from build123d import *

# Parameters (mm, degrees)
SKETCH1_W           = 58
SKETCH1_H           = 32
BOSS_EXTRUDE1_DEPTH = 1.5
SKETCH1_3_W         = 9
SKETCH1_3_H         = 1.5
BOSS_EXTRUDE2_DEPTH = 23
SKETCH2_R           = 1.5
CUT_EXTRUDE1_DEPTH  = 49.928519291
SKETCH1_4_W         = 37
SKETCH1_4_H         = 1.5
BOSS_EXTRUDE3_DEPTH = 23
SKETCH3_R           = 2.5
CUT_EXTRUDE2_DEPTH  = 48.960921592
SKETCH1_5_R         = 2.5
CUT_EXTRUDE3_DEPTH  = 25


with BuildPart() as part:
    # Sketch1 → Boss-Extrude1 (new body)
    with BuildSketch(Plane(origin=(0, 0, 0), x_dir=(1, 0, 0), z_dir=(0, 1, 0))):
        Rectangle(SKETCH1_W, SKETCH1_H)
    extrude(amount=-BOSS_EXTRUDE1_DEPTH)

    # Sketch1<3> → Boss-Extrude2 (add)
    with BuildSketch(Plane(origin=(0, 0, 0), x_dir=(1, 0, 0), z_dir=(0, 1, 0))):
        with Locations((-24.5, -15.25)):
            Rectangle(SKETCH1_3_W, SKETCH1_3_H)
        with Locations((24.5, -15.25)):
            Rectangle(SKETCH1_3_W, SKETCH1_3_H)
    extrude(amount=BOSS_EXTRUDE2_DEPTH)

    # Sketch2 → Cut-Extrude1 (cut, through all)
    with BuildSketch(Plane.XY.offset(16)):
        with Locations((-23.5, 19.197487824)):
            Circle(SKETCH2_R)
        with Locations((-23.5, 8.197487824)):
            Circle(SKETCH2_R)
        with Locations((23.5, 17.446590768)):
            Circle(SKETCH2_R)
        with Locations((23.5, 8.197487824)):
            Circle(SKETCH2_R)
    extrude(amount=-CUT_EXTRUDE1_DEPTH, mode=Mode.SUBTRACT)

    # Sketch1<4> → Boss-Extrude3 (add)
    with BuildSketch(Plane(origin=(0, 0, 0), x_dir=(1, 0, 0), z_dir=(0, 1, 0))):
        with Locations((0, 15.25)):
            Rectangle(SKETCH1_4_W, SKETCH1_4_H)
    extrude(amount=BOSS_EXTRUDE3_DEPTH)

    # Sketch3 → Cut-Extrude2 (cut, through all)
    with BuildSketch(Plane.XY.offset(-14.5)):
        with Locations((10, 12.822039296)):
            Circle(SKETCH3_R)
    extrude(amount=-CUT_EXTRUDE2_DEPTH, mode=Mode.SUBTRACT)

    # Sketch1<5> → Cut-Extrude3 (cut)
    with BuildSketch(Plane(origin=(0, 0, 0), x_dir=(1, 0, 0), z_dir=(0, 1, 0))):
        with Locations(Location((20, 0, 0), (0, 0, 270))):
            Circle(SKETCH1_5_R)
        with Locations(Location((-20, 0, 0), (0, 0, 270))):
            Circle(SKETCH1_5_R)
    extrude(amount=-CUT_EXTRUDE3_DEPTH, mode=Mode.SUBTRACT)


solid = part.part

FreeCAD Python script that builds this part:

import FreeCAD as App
import Part
import Sketcher
Q = App.Units.Quantity

doc = App.newDocument("Part")
body = doc.addObject("PartDesign::Body", "Body")

# Sketch on XZ plane
sketch1 = doc.addObject("Sketcher::SketchObject", "Sketch")
body.addObject(sketch1)
sketch1.AttachmentSupport = (doc.XZ_Plane, [""])
sketch1.MapMode = "FlatFace"
sketch1.addGeometry(Part.LineSegment(App.Vector(-29, -16, 0), App.Vector(-29, 16, 0)), False)
sketch1.addGeometry(Part.LineSegment(App.Vector(-29, 16, 0), App.Vector(29, 16, 0)), False)
sketch1.addGeometry(Part.LineSegment(App.Vector(29, 16, 0), App.Vector(29, -16, 0)), False)
sketch1.addGeometry(Part.LineSegment(App.Vector(29, -16, 0), App.Vector(-29, -16, 0)), False)
sketch1.addConstraint(Sketcher.Constraint("Coincident", 0, 2, 1, 1))
sketch1.addConstraint(Sketcher.Constraint("Coincident", 1, 2, 2, 1))
sketch1.addConstraint(Sketcher.Constraint("Coincident", 2, 2, 3, 1))
sketch1.addConstraint(Sketcher.Constraint("Coincident", 3, 2, 0, 1))
sketch1.addConstraint(Sketcher.Constraint("Vertical", 0))
sketch1.addConstraint(Sketcher.Constraint("Horizontal", 1))
sketch1.addConstraint(Sketcher.Constraint("Vertical", 2))
sketch1.addConstraint(Sketcher.Constraint("Horizontal", 3))
sketch1.addConstraint(Sketcher.Constraint("Symmetric", 0, 2, 2, 2, -1, 1))
sketch1.addConstraint(Sketcher.Constraint("DistanceX", 1, 1, 1, 2, Q("58 mm")))
sketch1.addConstraint(Sketcher.Constraint("DistanceY", 0, 1, 0, 2, Q("32 mm")))
pad1 = doc.addObject("PartDesign::Pad", "Pad")
body.addObject(pad1)
pad1.Profile = sketch1
pad1.Length = 1.5

# Sketch on XZ plane
sketch2 = doc.addObject("Sketcher::SketchObject", "Sketch001")
body.addObject(sketch2)
sketch2.AttachmentSupport = (doc.XZ_Plane, [""])
sketch2.MapMode = "FlatFace"
sketch2.addGeometry(Part.LineSegment(App.Vector(-29, 14.5, 0), App.Vector(-29, 16, 0)), False)
sketch2.addGeometry(Part.LineSegment(App.Vector(-29, 16, 0), App.Vector(-20, 16, 0)), False)
sketch2.addGeometry(Part.LineSegment(App.Vector(-20, 16, 0), App.Vector(-20, 14.5, 0)), False)
sketch2.addGeometry(Part.LineSegment(App.Vector(-20, 14.5, 0), App.Vector(-29, 14.5, 0)), False)
sketch2.addGeometry(Part.LineSegment(App.Vector(20, 14.5, 0), App.Vector(20, 16, 0)), False)
sketch2.addGeometry(Part.LineSegment(App.Vector(20, 16, 0), App.Vector(29, 16, 0)), False)
sketch2.addGeometry(Part.LineSegment(App.Vector(29, 16, 0), App.Vector(29, 14.5, 0)), False)
sketch2.addGeometry(Part.LineSegment(App.Vector(29, 14.5, 0), App.Vector(20, 14.5, 0)), False)
sketch2.addConstraint(Sketcher.Constraint("Coincident", 0, 2, 1, 1))
sketch2.addConstraint(Sketcher.Constraint("Coincident", 1, 2, 2, 1))
sketch2.addConstraint(Sketcher.Constraint("Coincident", 2, 2, 3, 1))
sketch2.addConstraint(Sketcher.Constraint("Coincident", 3, 2, 0, 1))
sketch2.addConstraint(Sketcher.Constraint("Coincident", 4, 2, 5, 1))
sketch2.addConstraint(Sketcher.Constraint("Coincident", 5, 2, 6, 1))
sketch2.addConstraint(Sketcher.Constraint("Coincident", 6, 2, 7, 1))
sketch2.addConstraint(Sketcher.Constraint("Coincident", 7, 2, 4, 1))
sketch2.addConstraint(Sketcher.Constraint("Vertical", 0))
sketch2.addConstraint(Sketcher.Constraint("Horizontal", 1))
sketch2.addConstraint(Sketcher.Constraint("Vertical", 2))
sketch2.addConstraint(Sketcher.Constraint("Horizontal", 3))
sketch2.addConstraint(Sketcher.Constraint("Vertical", 4))
sketch2.addConstraint(Sketcher.Constraint("Horizontal", 5))
sketch2.addConstraint(Sketcher.Constraint("Vertical", 6))
sketch2.addConstraint(Sketcher.Constraint("Horizontal", 7))
sketch2.addConstraint(Sketcher.Constraint("Symmetric", 1, 2, 4, 2, -2))
sketch2.addConstraint(Sketcher.Constraint("Symmetric", 3, 2, 6, 2, -2))
sketch2.addConstraint(Sketcher.Constraint("DistanceX", 1, 1, 1, 2, Q("9 mm")))
sketch2.addConstraint(Sketcher.Constraint("DistanceY", 0, 1, 0, 2, Q("1.5 mm")))
sketch2.addConstraint(Sketcher.Constraint("DistanceX", 0, 2, -1, 1, Q("29 mm")))
sketch2.addConstraint(Sketcher.Constraint("DistanceY", -1, 1, 0, 2, Q("16 mm")))
pad2 = doc.addObject("PartDesign::Pad", "Pad001")
body.addObject(pad2)
pad2.Profile = sketch2
pad2.Length = 23
pad2.Reversed = True

# Sketch on XY plane
sketch3 = doc.addObject("Sketcher::SketchObject", "Sketch002")
body.addObject(sketch3)
sketch3.AttachmentSupport = (doc.XY_Plane, [""])
sketch3.MapMode = "FlatFace"
sketch3.AttachmentOffset = App.Placement(App.Vector(0, 0, 16), App.Rotation())
sketch3.addGeometry(Part.Circle(App.Vector(-23.5, 19.2, 0), App.Vector(0, 0, 1), 1.5), False)
sketch3.addGeometry(Part.Circle(App.Vector(-23.5, 8.2, 0), App.Vector(0, 0, 1), 1.5), False)
sketch3.addGeometry(Part.Circle(App.Vector(23.5, 17.4, 0), App.Vector(0, 0, 1), 1.5), False)
sketch3.addGeometry(Part.Circle(App.Vector(23.5, 8.2, 0), App.Vector(0, 0, 1), 1.5), False)
sketch3.addConstraint(Sketcher.Constraint("Equal", 0, 1))
sketch3.addConstraint(Sketcher.Constraint("Equal", 1, 2))
sketch3.addConstraint(Sketcher.Constraint("Equal", 2, 3))
sketch3.addConstraint(Sketcher.Constraint("Symmetric", 1, 3, 3, 3, -2))
sketch3.addConstraint(Sketcher.Constraint("Vertical", 0, 3, 1, 3))
sketch3.addConstraint(Sketcher.Constraint("Vertical", 2, 3, 3, 3))
sketch3.addConstraint(Sketcher.Constraint("Diameter", 0, Q("3 mm")))
sketch3.addConstraint(Sketcher.Constraint("DistanceY", 1, 3, 0, 3, Q("11 mm")))
sketch3.addConstraint(Sketcher.Constraint("DistanceX", 0, 3, 2, 3, Q("47 mm")))
sketch3.addConstraint(Sketcher.Constraint("DistanceY", -1, 1, 2, 3, Q("17.446591 mm")))
sketch3.addConstraint(Sketcher.Constraint("DistanceY", -1, 1, 0, 3, Q("19.197488 mm")))
pocket1 = doc.addObject("PartDesign::Pocket", "Pocket")
body.addObject(pocket1)
pocket1.Profile = sketch3
pocket1.Type = "ThroughAll"

# Sketch on XZ plane
sketch4 = doc.addObject("Sketcher::SketchObject", "Sketch003")
body.addObject(sketch4)
sketch4.AttachmentSupport = (doc.XZ_Plane, [""])
sketch4.MapMode = "FlatFace"
sketch4.addGeometry(Part.LineSegment(App.Vector(-18.5, -16, 0), App.Vector(-18.5, -14.5, 0)), False)
sketch4.addGeometry(Part.LineSegment(App.Vector(-18.5, -14.5, 0), App.Vector(18.5, -14.5, 0)), False)
sketch4.addGeometry(Part.LineSegment(App.Vector(18.5, -14.5, 0), App.Vector(18.5, -16, 0)), False)
sketch4.addGeometry(Part.LineSegment(App.Vector(18.5, -16, 0), App.Vector(-18.5, -16, 0)), False)
sketch4.addConstraint(Sketcher.Constraint("Coincident", 0, 2, 1, 1))
sketch4.addConstraint(Sketcher.Constraint("Coincident", 1, 2, 2, 1))
sketch4.addConstraint(Sketcher.Constraint("Coincident", 2, 2, 3, 1))
sketch4.addConstraint(Sketcher.Constraint("Coincident", 3, 2, 0, 1))
sketch4.addConstraint(Sketcher.Constraint("Vertical", 0))
sketch4.addConstraint(Sketcher.Constraint("Horizontal", 1))
sketch4.addConstraint(Sketcher.Constraint("Vertical", 2))
sketch4.addConstraint(Sketcher.Constraint("Horizontal", 3))
sketch4.addConstraint(Sketcher.Constraint("DistanceX", 1, 1, 1, 2, Q("37 mm")))
sketch4.addConstraint(Sketcher.Constraint("DistanceY", 0, 1, 0, 2, Q("1.5 mm")))
sketch4.addConstraint(Sketcher.Constraint("DistanceY", 2, 2, -1, 1, Q("16 mm")))
sketch4.addConstraint(Sketcher.Constraint("DistanceX", 0, 2, -1, 1, Q("18.5 mm")))
pad3 = doc.addObject("PartDesign::Pad", "Pad002")
body.addObject(pad3)
pad3.Profile = sketch4
pad3.Length = 23
pad3.Reversed = True

# Sketch on XY plane
sketch5 = doc.addObject("Sketcher::SketchObject", "Sketch004")
body.addObject(sketch5)
sketch5.AttachmentSupport = (doc.XY_Plane, [""])
sketch5.MapMode = "FlatFace"
sketch5.AttachmentOffset = App.Placement(App.Vector(0, 0, -14.5), App.Rotation())
sketch5.addGeometry(Part.Circle(App.Vector(10, 12.8, 0), App.Vector(0, 0, 1), 2.5), False)
sketch5.addConstraint(Sketcher.Constraint("Diameter", 0, Q("5 mm")))
sketch5.addConstraint(Sketcher.Constraint("DistanceX", -1, 1, 0, 3, Q("10 mm")))
sketch5.addConstraint(Sketcher.Constraint("DistanceY", -1, 1, 0, 3, Q("12.822039 mm")))
pocket2 = doc.addObject("PartDesign::Pocket", "Pocket001")
body.addObject(pocket2)
pocket2.Profile = sketch5
pocket2.Type = "ThroughAll"

# Sketch on XZ plane
sketch6 = doc.addObject("Sketcher::SketchObject", "Sketch005")
body.addObject(sketch6)
sketch6.AttachmentSupport = (doc.XZ_Plane, [""])
sketch6.MapMode = "FlatFace"
sketch6.addGeometry(Part.Circle(App.Vector(20, 0, 0), App.Vector(0, 0, 1), 2.5), False)
sketch6.addGeometry(Part.Circle(App.Vector(-20, 0, 0), App.Vector(0, 0, 1), 2.5), False)
sketch6.addConstraint(Sketcher.Constraint("Equal", 0, 1))
sketch6.addConstraint(Sketcher.Constraint("Symmetric", 0, 3, 1, 3, -1, 1))
sketch6.addConstraint(Sketcher.Constraint("PointOnObject", 0, 3, -1))
sketch6.addConstraint(Sketcher.Constraint("Diameter", 0, Q("5 mm")))
sketch6.addConstraint(Sketcher.Constraint("DistanceX", -1, 1, 0, 3, Q("20 mm")))
pocket3 = doc.addObject("PartDesign::Pocket", "Pocket002")
body.addObject(pocket3)
pocket3.Profile = sketch6
pocket3.Length = 25
pocket3.Reversed = True

doc.recompute()
